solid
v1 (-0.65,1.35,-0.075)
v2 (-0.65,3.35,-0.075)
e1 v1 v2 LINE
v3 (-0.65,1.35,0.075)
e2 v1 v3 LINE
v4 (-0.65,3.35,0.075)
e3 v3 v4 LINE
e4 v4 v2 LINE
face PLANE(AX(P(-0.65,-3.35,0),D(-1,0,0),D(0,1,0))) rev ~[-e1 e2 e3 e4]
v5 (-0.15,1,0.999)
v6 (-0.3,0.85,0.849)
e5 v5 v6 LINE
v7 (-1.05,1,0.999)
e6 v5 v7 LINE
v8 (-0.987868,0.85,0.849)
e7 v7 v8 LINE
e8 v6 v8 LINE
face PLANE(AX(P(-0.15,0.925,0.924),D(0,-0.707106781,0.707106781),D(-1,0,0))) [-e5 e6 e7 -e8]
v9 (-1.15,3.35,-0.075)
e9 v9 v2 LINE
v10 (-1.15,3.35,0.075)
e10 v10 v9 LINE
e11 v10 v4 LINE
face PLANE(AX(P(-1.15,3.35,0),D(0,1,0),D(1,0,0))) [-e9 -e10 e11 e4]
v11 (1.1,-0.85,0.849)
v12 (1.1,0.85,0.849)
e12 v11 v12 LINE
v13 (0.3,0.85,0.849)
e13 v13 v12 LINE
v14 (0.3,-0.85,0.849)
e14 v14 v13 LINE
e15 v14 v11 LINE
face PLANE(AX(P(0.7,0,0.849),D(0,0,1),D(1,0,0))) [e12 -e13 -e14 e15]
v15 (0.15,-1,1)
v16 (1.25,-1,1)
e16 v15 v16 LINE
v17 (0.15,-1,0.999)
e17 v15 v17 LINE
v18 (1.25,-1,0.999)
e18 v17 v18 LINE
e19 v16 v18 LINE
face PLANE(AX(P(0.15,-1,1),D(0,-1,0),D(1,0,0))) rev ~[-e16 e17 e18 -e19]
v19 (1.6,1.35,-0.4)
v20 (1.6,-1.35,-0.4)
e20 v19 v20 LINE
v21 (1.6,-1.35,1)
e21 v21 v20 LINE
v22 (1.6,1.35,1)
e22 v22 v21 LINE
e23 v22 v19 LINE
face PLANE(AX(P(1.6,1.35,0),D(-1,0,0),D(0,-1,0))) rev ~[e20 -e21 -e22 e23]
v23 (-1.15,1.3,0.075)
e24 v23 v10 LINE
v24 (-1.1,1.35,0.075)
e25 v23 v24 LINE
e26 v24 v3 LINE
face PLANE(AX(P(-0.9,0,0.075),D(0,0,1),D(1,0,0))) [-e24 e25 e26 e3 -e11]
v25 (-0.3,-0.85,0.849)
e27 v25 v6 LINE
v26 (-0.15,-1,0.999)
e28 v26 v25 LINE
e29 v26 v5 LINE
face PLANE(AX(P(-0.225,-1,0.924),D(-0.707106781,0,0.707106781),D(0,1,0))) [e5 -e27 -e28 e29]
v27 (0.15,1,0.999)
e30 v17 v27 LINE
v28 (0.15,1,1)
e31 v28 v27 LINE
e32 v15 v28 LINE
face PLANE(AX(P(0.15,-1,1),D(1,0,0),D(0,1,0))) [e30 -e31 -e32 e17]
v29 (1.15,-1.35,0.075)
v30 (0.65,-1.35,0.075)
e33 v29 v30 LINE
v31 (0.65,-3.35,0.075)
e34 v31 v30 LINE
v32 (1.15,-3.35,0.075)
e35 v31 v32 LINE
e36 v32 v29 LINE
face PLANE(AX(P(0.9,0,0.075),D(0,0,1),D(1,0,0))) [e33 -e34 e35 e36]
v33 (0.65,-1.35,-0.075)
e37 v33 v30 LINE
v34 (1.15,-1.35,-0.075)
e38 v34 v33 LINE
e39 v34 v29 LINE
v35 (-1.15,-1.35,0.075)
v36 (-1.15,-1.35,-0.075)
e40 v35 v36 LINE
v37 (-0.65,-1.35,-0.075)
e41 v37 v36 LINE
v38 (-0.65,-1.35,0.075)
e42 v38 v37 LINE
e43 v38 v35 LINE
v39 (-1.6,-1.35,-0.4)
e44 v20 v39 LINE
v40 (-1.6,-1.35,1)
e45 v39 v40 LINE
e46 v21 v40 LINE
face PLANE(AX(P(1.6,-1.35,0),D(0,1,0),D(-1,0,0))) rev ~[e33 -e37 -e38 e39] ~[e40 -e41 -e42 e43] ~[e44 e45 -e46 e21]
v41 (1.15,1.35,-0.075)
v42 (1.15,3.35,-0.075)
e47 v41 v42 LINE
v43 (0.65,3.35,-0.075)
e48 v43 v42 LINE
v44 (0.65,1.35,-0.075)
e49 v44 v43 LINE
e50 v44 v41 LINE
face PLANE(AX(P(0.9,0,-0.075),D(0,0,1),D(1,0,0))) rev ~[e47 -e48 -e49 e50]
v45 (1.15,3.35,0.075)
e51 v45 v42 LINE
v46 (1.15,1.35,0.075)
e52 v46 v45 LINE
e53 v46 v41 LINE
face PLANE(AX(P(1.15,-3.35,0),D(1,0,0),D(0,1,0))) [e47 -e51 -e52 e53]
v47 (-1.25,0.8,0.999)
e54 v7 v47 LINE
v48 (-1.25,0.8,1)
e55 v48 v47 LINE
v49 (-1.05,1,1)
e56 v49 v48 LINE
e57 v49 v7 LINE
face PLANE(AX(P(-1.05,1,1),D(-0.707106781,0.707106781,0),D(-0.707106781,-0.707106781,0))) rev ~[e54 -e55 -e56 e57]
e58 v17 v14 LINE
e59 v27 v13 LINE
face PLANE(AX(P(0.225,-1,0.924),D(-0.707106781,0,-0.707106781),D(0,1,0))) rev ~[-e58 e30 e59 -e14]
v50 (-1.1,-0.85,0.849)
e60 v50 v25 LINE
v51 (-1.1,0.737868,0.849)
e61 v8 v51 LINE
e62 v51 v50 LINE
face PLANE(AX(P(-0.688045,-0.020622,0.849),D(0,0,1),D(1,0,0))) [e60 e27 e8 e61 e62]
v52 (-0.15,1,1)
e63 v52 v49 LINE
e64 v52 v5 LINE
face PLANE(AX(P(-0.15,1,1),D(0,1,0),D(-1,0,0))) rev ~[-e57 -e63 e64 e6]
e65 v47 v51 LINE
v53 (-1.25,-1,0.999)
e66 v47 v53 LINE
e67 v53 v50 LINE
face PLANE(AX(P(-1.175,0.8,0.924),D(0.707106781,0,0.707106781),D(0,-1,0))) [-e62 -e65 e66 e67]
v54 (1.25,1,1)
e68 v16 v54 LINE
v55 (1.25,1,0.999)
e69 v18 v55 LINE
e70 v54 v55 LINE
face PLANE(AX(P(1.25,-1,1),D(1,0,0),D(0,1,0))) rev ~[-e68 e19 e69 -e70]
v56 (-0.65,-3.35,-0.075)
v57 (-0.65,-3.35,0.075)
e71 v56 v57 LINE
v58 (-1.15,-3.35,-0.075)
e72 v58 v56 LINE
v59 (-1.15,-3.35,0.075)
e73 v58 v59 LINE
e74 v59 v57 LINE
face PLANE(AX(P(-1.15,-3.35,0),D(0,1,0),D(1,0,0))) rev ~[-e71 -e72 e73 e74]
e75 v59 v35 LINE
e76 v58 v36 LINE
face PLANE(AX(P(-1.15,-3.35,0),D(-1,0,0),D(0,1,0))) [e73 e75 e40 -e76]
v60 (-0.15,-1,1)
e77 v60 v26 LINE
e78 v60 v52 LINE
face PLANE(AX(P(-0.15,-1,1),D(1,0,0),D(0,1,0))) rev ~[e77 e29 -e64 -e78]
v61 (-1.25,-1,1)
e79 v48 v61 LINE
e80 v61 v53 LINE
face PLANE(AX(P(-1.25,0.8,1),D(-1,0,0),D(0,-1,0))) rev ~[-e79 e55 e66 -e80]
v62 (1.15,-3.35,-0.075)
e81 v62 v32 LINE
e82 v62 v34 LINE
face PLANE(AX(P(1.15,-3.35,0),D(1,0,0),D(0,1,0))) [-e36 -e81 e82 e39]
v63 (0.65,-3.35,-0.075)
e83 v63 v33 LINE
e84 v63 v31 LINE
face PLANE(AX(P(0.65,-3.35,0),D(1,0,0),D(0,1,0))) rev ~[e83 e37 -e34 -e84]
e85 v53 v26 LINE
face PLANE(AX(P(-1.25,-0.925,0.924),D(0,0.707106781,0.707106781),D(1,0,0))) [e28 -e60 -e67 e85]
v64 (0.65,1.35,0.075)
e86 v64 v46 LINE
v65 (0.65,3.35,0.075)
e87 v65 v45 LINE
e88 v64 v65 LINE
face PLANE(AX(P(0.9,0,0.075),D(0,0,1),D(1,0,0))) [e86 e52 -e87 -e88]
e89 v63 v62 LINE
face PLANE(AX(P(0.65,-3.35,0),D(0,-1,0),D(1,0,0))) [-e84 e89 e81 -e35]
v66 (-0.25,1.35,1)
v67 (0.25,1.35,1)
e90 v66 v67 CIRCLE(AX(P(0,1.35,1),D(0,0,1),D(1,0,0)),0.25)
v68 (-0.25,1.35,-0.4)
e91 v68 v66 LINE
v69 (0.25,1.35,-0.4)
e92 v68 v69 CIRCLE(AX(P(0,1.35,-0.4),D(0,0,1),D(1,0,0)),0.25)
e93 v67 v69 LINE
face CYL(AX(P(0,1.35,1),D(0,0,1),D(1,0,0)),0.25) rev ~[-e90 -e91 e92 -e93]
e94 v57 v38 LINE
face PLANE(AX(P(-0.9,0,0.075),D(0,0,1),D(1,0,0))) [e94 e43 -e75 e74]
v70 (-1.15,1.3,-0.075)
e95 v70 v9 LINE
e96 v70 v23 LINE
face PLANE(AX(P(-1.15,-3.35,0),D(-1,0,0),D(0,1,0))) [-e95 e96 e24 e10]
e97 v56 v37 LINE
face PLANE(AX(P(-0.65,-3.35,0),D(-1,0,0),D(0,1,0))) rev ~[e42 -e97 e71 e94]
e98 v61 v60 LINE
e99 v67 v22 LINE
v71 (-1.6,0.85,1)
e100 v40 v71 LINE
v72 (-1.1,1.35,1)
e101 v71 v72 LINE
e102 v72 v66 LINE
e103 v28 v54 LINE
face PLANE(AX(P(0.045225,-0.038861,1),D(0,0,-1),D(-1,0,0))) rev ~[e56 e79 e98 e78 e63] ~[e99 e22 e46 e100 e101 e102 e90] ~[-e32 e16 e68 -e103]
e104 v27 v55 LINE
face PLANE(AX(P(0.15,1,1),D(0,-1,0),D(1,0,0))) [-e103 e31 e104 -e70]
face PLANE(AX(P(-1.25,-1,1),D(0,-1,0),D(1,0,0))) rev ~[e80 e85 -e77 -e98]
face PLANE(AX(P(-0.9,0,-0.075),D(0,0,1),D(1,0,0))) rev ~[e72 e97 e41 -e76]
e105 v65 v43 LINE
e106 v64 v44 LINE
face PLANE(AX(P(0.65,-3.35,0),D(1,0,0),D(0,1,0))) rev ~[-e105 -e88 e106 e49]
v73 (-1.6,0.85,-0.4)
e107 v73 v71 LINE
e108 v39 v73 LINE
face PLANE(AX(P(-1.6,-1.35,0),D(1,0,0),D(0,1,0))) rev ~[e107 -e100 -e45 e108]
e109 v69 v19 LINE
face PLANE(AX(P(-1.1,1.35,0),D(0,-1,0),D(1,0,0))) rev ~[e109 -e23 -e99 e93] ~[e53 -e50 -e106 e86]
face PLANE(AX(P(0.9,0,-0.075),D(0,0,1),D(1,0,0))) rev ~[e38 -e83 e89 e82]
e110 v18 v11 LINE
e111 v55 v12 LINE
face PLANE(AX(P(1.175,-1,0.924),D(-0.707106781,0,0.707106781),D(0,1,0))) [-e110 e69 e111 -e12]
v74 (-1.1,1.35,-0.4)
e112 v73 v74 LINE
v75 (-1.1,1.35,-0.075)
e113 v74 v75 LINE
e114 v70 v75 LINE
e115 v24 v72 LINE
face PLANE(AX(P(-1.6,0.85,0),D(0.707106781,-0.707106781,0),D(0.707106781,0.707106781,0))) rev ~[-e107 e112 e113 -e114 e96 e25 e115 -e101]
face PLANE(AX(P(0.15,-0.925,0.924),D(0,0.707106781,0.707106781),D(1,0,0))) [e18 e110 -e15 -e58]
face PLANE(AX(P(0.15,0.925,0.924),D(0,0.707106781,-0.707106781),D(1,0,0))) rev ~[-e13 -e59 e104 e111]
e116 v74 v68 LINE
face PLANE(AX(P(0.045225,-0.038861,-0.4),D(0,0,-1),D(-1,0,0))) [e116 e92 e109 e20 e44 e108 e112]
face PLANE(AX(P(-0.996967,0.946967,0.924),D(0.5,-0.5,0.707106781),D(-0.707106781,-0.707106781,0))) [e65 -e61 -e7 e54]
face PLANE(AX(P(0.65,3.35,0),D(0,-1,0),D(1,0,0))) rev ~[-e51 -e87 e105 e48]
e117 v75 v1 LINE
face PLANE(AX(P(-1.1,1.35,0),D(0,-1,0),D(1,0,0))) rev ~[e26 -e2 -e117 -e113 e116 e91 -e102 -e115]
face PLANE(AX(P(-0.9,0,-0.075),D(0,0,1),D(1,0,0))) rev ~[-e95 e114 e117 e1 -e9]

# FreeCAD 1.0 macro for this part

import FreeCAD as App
import Part
import Sketcher
from FreeCAD import Vector
Q = App.Units.Quantity


def edges_at(feature, points):
    """Names of the edges that pass closest to the given points."""
    edges = feature.Shape.Edges
    near = lambda p: min(range(len(edges)), key=lambda i: edges[i].distToShape(Part.Vertex(*p))[0])
    return sorted({f"Edge{near(p) + 1}" for p in points})


def add_polygon(sketch, points):
    """Adds a closed chain of lines whose ends are joined by coincident constraints."""
    first, n = sketch.GeometryCount, len(points)
    for a, b in zip(points, points[1:] + points[:1]):
        sketch.addGeometry(Part.LineSegment(App.Vector(*a, 0), App.Vector(*b, 0)), False)
    for i in range(n):
        sketch.addConstraint(Sketcher.Constraint("Coincident", first + i, 2, first + (i + 1) % n, 1))

doc = App.newDocument("Part")
params = doc.addObject("Spreadsheet::Sheet", "Params")
for row, (alias, value) in enumerate([
    ("sketch1_width", "2.7 mm"),
    ("sketch1_width2", "3.2 mm"),
    ("pad1_length", "1 mm"),
    ("pad1_length2", "0.4 mm"),
    ("sketch2_height", "2 mm"),
    ("sketch2_width", "1.1 mm"),
    ("sketch2_width2", "0.9 mm"),
    ("pocket1_length", "0.151 mm"),
    ("chamfer_size", "0.15 mm"),
    ("sketch3_diameter", "0.5 mm"),
    ("sketch4_width", "0.5 mm"),
    ("sketch4_height", "6.7 mm"),
    ("pad2_length", "0.15 mm"),
], start=1):
    params.set(f"A{row}", alias)
    params.set(f"B{row}", "=" + value)
    params.setAlias(f"B{row}", alias)

body = doc.addObject("PartDesign::Body", "Body")

sketch1 = doc.addObject("Sketcher::SketchObject", "Sketch")
body.addObject(sketch1)
sketch1.AttachmentSupport = (doc.XY_Plane, [""])
sketch1.MapMode = "FlatFace"
add_polygon(sketch1, [(1.6, 1.4), (-1.1, 1.4), (-1.6, 0.8), (-1.6, -1.4), (1.6, -1.4)])
sketch1.addConstraint(Sketcher.Constraint("Horizontal", 0))
sketch1.addConstraint(Sketcher.Constraint("Vertical", 2))
sketch1.addConstraint(Sketcher.Constraint("Horizontal", 3))
sketch1.addConstraint(Sketcher.Constraint("Vertical", 4))
sketch1.addConstraint(Sketcher.Constraint("Symmetric", 2, 2, 4, 2, -1, 1))
sketch1.addConstraint(Sketcher.Constraint("Equal", 0, 4))
sketch1.addConstraint(Sketcher.Constraint("Angle", 1, Q("-135 deg")))
sketch1.addConstraint(Sketcher.Constraint("DistanceX", 0, 2, 0, 1, 2.7))
sketch1.addConstraint(Sketcher.Constraint("DistanceX", 3, 1, 3, 2, 3.2))
sketch1.setExpression("Constraints[12]", "Params.sketch1_width")
sketch1.setExpression("Constraints[13]", "Params.sketch1_width2")
pad1 = doc.addObject("PartDesign::Pad", "Pad")
body.addObject(pad1)
pad1.Profile = sketch1
pad1.Type = "TwoLengths"
pad1.setExpression("Length", "Params.pad1_length")
pad1.setExpression("Length2", "Params.pad1_length2")

sketch2 = doc.addObject("Sketcher::SketchObject", "Sketch001")
body.addObject(sketch2)
sketch2.AttachmentSupport = (doc.XY_Plane, [""])
sketch2.MapMode = "FlatFace"
sketch2.AttachmentOffset = App.Placement(Vector(0, 0, 1), App.Rotation())
add_polygon(sketch2, [(-1.25, -1), (-0.15, -1), (-0.15, 1), (-1.05, 1), (-1.25, 0.8)])
add_polygon(sketch2, [(0.15, 1), (0.15, -1), (1.25, -1), (1.25, 1)])
sketch2.addConstraint(Sketcher.Constraint("Horizontal", 0))
sketch2.addConstraint(Sketcher.Constraint("Vertical", 1))
sketch2.addConstraint(Sketcher.Constraint("Horizontal", 2))
sketch2.addConstraint(Sketcher.Constraint("Vertical", 4))
sketch2.addConstraint(Sketcher.Constraint("Vertical", 5))
sketch2.addConstraint(Sketcher.Constraint("Horizontal", 6))
sketch2.addConstraint(Sketcher.Constraint("Vertical", 7))
sketch2.addConstraint(Sketcher.Constraint("Horizontal", 8))
sketch2.addConstraint(Sketcher.Constraint("Symmetric", 1, 2, 5, 2, -1, 1))
sketch2.addConstraint(Sketcher.Constraint("Symmetric", 4, 2, 7, 2, -1, 1))
sketch2.addConstraint(Sketcher.Constraint("Horizontal", 4, 2, 5, 2))
sketch2.addConstraint(Sketcher.Constraint("DistanceY", 1, 1, 1, 2, 2.0))
sketch2.addConstraint(Sketcher.Constraint("Angle", 3, Q("-135 deg")))
sketch2.addConstraint(Sketcher.Constraint("DistanceX", 0, 1, 0, 2, 1.1))
sketch2.addConstraint(Sketcher.Constraint("DistanceX", 2, 2, 2, 1, 0.9))
sketch2.addConstraint(Sketcher.Constraint("DistanceX", 0, 2, 5, 2, 0.3))
sketch2.setExpression("Constraints[20]", "Params.sketch2_height")
sketch2.setExpression("Constraints[22]", "Params.sketch2_width")
sketch2.setExpression("Constraints[23]", "Params.sketch2_width2")
pocket1 = doc.addObject("PartDesign::Pocket", "Pocket")
body.addObject(pocket1)
pocket1.Profile = sketch2
pocket1.setExpression("Length", "Params.pocket1_length")
doc.recompute()

chamfer = doc.addObject("PartDesign::Chamfer", "Chamfer")
body.addObject(chamfer)
chamfer.Base = (pocket1, edges_at(pocket1, [
    (-1.15, 0.9, 0.849),
    (-0.6, 1, 0.849),
    (-1.25, -0.1, 0.849),
    (0.15, 0, 0.849),
    (0.7, 1, 0.849),
    (1.25, 0, 0.849),
    (-0.15, 0, 0.849),
    (0.7, -1, 0.849),
    (-0.7, -1, 0.849),
]))
chamfer.setExpression("Size", "Params.chamfer_size")

sketch3 = doc.addObject("Sketcher::SketchObject", "Sketch002")
body.addObject(sketch3)
sketch3.AttachmentSupport = (doc.XY_Plane, [""])
sketch3.MapMode = "FlatFace"
sketch3.AttachmentOffset = App.Placement(Vector(0, 0, 1), App.Rotation())
sketch3.addGeometry(Part.Circle(Vector(0, 1.35, 0), Vector(0, 0, 1), 0.25), False)
sketch3.addConstraint(Sketcher.Constraint("PointOnObject", 0, 3, -2))
sketch3.addConstraint(Sketcher.Constraint("Diameter", 0, 0.5))
sketch3.addConstraint(Sketcher.Constraint("DistanceY", -1, 1, 0, 3, 1.35))
sketch3.setExpression("Constraints[1]", "Params.sketch3_diameter")
pocket2 = doc.addObject("PartDesign::Pocket", "Pocket001")
body.addObject(pocket2)
pocket2.Profile = sketch3
pocket2.Type = "ThroughAll"
body2 = doc.addObject("PartDesign::Body", "Body001")
body2.AllowCompound = True

sketch4 = doc.addObject("Sketcher::SketchObject", "Sketch003")
body2.addObject(sketch4)
sketch4.AttachmentSupport = (doc.getObject("XY_Plane001"), [""])
sketch4.MapMode = "FlatFace"
add_polygon(sketch4, [(-1.15, 3.35), (-1.15, -3.35), (-0.65, -3.35), (-0.65, 3.35)])
add_polygon(sketch4, [(0.65, 3.35), (0.65, -3.35), (1.15, -3.35), (1.15, 3.35)])
sketch4.addConstraint(Sketcher.Constraint("Vertical", 0))
sketch4.addConstraint(Sketcher.Constraint("Horizontal", 1))
sketch4.addConstraint(Sketcher.Constraint("Vertical", 2))
sketch4.addConstraint(Sketcher.Constraint("Horizontal", 3))
sketch4.addConstraint(Sketcher.Constraint("Vertical", 4))
sketch4.addConstraint(Sketcher.Constraint("Horizontal", 5))
sketch4.addConstraint(Sketcher.Constraint("Vertical", 6))
sketch4.addConstraint(Sketcher.Constraint("Horizontal", 7))
sketch4.addConstraint(Sketcher.Constraint("Symmetric", 2, 2, 4, 2, -1, 1))
sketch4.addConstraint(Sketcher.Constraint("Symmetric", 0, 2, 6, 2, -1, 1))
sketch4.addConstraint(Sketcher.Constraint("Horizontal", 1, 2, 4, 2))
sketch4.addConstraint(Sketcher.Constraint("DistanceX", 1, 1, 1, 2, 0.5))
sketch4.addConstraint(Sketcher.Constraint("DistanceY", 0, 2, 0, 1, 6.7))
sketch4.addConstraint(Sketcher.Constraint("DistanceX", 1, 2, 4, 2, 1.3))
sketch4.setExpression("Constraints[19]", "Params.sketch4_width")
sketch4.setExpression("Constraints[20]", "Params.sketch4_height")
pad2 = doc.addObject("PartDesign::Pad", "Pad001")
body2.addObject(pad2)
pad2.Profile = sketch4
pad2.setExpression("Length", "Params.pad2_length")
pad2.Midplane = True
doc.recompute()

boolean = doc.addObject("PartDesign::Boolean", "Boolean")
body2.addObject(boolean)
boolean.Type = "Fuse"
boolean.addObjects([body])

doc.recompute()
